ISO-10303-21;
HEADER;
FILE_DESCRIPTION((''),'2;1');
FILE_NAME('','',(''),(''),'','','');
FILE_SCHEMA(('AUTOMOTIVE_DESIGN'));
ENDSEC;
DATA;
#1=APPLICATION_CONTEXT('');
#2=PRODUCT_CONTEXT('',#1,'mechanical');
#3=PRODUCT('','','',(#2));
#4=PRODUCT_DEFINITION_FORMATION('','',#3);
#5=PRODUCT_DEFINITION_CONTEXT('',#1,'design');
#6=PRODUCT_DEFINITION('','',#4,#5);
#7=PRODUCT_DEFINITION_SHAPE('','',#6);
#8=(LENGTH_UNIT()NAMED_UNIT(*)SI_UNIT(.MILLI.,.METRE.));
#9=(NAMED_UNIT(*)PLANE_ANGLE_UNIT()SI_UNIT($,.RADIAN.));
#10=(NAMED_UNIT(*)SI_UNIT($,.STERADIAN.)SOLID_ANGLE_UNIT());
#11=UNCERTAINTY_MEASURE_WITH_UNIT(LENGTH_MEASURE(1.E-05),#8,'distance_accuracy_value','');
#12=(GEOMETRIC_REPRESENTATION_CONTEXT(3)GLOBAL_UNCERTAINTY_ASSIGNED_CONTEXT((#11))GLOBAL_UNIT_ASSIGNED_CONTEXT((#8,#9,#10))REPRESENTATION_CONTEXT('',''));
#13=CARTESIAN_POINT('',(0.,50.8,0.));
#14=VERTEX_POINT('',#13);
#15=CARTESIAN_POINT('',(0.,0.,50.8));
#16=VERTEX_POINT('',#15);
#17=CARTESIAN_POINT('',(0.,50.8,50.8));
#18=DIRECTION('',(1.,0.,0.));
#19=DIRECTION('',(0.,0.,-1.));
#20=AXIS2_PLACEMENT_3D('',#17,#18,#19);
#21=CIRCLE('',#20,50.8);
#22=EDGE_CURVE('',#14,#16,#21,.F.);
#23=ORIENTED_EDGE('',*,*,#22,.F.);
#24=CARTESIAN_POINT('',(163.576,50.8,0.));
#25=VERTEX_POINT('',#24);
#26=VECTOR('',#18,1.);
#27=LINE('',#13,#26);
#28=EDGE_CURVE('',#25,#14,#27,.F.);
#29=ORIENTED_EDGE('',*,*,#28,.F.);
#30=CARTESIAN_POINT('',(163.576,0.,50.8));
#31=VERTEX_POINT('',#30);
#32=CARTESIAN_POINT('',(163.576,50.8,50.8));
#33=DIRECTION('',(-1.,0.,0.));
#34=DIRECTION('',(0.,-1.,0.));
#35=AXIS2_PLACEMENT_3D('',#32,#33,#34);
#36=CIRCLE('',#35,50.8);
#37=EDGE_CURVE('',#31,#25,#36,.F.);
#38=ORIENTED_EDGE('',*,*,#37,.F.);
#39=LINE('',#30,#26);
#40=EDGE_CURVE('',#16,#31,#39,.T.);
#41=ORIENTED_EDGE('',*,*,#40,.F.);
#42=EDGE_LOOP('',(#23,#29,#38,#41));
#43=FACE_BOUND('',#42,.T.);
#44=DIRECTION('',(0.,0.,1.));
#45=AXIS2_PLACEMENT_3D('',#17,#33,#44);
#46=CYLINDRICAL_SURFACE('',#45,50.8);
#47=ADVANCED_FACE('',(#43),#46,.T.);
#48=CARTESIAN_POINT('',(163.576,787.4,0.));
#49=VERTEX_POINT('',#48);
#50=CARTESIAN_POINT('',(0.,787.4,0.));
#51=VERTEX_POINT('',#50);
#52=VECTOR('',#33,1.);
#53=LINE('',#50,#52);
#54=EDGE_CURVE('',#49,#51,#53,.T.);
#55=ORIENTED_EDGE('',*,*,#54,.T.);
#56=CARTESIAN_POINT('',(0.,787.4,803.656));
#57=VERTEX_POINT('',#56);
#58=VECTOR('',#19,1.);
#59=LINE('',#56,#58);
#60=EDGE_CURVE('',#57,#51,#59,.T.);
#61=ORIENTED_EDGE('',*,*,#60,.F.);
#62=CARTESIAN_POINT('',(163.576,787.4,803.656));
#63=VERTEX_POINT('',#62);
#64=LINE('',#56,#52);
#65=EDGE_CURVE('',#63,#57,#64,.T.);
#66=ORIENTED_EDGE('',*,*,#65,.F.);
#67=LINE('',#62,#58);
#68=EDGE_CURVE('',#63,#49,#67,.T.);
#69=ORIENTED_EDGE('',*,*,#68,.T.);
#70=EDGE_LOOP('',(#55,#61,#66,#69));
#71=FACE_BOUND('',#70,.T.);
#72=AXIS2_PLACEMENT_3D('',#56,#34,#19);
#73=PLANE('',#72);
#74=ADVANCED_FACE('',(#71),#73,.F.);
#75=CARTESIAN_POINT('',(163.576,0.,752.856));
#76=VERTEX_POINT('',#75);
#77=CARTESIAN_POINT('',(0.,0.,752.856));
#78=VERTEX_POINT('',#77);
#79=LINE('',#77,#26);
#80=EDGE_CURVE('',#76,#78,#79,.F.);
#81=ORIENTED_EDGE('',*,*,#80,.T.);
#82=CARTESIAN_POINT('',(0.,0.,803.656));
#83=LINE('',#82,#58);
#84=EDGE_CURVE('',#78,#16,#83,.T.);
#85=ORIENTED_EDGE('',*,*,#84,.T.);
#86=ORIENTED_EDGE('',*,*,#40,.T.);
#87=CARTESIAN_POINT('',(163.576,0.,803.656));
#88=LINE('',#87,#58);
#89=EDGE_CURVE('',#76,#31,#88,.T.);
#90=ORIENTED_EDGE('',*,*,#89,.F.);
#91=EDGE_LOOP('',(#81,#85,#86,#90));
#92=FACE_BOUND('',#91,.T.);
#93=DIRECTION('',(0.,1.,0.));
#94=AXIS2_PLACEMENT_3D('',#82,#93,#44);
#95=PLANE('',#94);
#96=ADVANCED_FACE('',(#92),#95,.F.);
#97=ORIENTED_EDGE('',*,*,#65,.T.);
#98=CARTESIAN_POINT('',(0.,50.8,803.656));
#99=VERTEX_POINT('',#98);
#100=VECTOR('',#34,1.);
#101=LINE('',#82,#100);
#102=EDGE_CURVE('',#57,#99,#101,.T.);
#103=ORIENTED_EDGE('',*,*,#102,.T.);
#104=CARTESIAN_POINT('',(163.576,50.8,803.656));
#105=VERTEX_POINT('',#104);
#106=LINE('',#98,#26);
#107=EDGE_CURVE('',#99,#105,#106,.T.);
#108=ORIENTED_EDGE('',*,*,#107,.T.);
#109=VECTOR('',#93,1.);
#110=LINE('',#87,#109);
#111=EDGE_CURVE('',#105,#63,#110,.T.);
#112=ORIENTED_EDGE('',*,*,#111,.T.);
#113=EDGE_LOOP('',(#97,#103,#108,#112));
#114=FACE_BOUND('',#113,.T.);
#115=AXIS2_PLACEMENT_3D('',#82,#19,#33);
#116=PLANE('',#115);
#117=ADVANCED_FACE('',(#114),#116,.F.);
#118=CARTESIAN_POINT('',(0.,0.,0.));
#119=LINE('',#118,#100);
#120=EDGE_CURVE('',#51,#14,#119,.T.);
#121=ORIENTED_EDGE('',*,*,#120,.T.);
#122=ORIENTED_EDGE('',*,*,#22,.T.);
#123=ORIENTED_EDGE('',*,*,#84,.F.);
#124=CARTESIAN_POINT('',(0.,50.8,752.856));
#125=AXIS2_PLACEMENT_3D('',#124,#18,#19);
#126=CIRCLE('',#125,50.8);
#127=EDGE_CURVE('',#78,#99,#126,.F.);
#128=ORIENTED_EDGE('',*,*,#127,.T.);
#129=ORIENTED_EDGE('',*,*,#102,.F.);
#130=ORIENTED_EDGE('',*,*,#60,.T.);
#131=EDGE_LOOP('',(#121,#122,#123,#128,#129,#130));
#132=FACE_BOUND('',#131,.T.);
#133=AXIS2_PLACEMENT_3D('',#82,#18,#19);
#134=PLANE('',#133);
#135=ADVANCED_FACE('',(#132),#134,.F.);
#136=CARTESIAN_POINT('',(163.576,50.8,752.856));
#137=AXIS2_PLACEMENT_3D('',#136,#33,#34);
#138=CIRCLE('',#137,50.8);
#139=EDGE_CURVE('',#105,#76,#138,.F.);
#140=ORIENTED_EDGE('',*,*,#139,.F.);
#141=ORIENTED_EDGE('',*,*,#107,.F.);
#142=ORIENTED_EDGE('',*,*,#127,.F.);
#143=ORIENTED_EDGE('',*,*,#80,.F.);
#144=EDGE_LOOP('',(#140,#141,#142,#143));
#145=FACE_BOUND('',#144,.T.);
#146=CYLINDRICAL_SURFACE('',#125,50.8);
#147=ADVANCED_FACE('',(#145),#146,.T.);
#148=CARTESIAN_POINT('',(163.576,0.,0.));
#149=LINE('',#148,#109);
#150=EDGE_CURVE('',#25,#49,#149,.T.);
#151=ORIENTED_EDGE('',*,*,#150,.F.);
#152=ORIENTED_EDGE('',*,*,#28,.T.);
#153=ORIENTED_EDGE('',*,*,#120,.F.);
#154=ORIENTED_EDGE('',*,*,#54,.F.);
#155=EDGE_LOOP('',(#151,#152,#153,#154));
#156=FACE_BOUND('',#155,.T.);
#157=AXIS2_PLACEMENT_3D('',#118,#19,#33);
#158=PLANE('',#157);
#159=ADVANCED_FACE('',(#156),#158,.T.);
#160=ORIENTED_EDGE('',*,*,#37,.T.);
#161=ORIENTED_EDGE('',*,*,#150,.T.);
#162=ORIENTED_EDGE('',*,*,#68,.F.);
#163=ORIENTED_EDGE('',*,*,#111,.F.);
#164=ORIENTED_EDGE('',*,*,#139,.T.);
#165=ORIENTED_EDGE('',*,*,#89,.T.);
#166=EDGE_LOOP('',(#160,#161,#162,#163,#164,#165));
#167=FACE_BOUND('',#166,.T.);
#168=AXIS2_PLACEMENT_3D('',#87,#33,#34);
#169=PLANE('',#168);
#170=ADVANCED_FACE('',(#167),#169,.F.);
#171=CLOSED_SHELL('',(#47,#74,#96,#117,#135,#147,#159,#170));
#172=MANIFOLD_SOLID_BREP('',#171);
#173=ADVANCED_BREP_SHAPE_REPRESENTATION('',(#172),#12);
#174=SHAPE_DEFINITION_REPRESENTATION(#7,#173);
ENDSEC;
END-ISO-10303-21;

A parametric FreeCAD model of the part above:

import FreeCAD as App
import Part
import Sketcher

V = App.Vector
Q = App.Units.Quantity


def edges_at(feature, points):
    """Names of the edges that pass closest to the given points."""
    edges = feature.Shape.Edges
    near = lambda p: min(range(len(edges)), key=lambda i: edges[i].distToShape(Part.Vertex(*p))[0])
    return sorted({f"Edge{near(p) + 1}" for p in points})

doc = App.newDocument("Part")
params = doc.addObject("Spreadsheet::Sheet", "Params")
for row, (alias, value) in enumerate([
    ("sketch1_height", "31 in"),
    ("sketch1_width", "6.44 in"),
    ("pad1_length", "31.64 in"),
    ("fillet_radius", "2 in"),
], start=1):
    params.set(f"A{row}", alias)
    params.set(f"B{row}", "=" + value)
    params.setAlias(f"B{row}", alias)

body = doc.addObject("PartDesign::Body", "Body")

# Sketch on XY plane
sketch1 = body.newObject("Sketcher::SketchObject", "Sketch")
sketch1.AttachmentSupport = (doc.getObject("XY_Plane"), [""])
sketch1.MapMode = "FlatFace"
sketch1.addGeometry([
    Part.LineSegment(V(0, 787, 0), V(0, 0, 0)),
    Part.LineSegment(V(0, 0, 0), V(164, 0, 0)),
    Part.LineSegment(V(164, 0, 0), V(164, 787, 0)),
    Part.LineSegment(V(164, 787, 0), V(0, 787, 0)),
], False)
sketch1.addConstraint([
    Sketcher.Constraint("Coincident", 0, 2, 1, 1),
    Sketcher.Constraint("Coincident", 1, 2, 2, 1),
    Sketcher.Constraint("Coincident", 2, 2, 3, 1),
    Sketcher.Constraint("Coincident", 3, 2, 0, 1),
    Sketcher.Constraint("Vertical", 0),
    Sketcher.Constraint("Horizontal", 1),
    Sketcher.Constraint("Vertical", 2),
    Sketcher.Constraint("Horizontal", 3),
    Sketcher.Constraint("Coincident", 0, 2, -1, 1),
    Sketcher.Constraint("DistanceY", 0, 2, 0, 1, Q("31 in")),
    Sketcher.Constraint("DistanceX", 1, 1, 1, 2, Q("6.44 in")),
])
sketch1.setExpression("Constraints[9]", "Params.sketch1_height")
sketch1.setExpression("Constraints[10]", "Params.sketch1_width")
pad1 = body.newObject("PartDesign::Pad", "Pad")
pad1.Profile = sketch1
pad1.setExpression("Length", "Params.pad1_length")
doc.recompute()

fillet = body.newObject("PartDesign::Fillet", "Fillet")
fillet.Base = (pad1, edges_at(pad1, [(81.788, 0, 0), (81.788, 0, 803.656)]))
fillet.setExpression("Radius", "Params.fillet_radius")

doc.recompute()
